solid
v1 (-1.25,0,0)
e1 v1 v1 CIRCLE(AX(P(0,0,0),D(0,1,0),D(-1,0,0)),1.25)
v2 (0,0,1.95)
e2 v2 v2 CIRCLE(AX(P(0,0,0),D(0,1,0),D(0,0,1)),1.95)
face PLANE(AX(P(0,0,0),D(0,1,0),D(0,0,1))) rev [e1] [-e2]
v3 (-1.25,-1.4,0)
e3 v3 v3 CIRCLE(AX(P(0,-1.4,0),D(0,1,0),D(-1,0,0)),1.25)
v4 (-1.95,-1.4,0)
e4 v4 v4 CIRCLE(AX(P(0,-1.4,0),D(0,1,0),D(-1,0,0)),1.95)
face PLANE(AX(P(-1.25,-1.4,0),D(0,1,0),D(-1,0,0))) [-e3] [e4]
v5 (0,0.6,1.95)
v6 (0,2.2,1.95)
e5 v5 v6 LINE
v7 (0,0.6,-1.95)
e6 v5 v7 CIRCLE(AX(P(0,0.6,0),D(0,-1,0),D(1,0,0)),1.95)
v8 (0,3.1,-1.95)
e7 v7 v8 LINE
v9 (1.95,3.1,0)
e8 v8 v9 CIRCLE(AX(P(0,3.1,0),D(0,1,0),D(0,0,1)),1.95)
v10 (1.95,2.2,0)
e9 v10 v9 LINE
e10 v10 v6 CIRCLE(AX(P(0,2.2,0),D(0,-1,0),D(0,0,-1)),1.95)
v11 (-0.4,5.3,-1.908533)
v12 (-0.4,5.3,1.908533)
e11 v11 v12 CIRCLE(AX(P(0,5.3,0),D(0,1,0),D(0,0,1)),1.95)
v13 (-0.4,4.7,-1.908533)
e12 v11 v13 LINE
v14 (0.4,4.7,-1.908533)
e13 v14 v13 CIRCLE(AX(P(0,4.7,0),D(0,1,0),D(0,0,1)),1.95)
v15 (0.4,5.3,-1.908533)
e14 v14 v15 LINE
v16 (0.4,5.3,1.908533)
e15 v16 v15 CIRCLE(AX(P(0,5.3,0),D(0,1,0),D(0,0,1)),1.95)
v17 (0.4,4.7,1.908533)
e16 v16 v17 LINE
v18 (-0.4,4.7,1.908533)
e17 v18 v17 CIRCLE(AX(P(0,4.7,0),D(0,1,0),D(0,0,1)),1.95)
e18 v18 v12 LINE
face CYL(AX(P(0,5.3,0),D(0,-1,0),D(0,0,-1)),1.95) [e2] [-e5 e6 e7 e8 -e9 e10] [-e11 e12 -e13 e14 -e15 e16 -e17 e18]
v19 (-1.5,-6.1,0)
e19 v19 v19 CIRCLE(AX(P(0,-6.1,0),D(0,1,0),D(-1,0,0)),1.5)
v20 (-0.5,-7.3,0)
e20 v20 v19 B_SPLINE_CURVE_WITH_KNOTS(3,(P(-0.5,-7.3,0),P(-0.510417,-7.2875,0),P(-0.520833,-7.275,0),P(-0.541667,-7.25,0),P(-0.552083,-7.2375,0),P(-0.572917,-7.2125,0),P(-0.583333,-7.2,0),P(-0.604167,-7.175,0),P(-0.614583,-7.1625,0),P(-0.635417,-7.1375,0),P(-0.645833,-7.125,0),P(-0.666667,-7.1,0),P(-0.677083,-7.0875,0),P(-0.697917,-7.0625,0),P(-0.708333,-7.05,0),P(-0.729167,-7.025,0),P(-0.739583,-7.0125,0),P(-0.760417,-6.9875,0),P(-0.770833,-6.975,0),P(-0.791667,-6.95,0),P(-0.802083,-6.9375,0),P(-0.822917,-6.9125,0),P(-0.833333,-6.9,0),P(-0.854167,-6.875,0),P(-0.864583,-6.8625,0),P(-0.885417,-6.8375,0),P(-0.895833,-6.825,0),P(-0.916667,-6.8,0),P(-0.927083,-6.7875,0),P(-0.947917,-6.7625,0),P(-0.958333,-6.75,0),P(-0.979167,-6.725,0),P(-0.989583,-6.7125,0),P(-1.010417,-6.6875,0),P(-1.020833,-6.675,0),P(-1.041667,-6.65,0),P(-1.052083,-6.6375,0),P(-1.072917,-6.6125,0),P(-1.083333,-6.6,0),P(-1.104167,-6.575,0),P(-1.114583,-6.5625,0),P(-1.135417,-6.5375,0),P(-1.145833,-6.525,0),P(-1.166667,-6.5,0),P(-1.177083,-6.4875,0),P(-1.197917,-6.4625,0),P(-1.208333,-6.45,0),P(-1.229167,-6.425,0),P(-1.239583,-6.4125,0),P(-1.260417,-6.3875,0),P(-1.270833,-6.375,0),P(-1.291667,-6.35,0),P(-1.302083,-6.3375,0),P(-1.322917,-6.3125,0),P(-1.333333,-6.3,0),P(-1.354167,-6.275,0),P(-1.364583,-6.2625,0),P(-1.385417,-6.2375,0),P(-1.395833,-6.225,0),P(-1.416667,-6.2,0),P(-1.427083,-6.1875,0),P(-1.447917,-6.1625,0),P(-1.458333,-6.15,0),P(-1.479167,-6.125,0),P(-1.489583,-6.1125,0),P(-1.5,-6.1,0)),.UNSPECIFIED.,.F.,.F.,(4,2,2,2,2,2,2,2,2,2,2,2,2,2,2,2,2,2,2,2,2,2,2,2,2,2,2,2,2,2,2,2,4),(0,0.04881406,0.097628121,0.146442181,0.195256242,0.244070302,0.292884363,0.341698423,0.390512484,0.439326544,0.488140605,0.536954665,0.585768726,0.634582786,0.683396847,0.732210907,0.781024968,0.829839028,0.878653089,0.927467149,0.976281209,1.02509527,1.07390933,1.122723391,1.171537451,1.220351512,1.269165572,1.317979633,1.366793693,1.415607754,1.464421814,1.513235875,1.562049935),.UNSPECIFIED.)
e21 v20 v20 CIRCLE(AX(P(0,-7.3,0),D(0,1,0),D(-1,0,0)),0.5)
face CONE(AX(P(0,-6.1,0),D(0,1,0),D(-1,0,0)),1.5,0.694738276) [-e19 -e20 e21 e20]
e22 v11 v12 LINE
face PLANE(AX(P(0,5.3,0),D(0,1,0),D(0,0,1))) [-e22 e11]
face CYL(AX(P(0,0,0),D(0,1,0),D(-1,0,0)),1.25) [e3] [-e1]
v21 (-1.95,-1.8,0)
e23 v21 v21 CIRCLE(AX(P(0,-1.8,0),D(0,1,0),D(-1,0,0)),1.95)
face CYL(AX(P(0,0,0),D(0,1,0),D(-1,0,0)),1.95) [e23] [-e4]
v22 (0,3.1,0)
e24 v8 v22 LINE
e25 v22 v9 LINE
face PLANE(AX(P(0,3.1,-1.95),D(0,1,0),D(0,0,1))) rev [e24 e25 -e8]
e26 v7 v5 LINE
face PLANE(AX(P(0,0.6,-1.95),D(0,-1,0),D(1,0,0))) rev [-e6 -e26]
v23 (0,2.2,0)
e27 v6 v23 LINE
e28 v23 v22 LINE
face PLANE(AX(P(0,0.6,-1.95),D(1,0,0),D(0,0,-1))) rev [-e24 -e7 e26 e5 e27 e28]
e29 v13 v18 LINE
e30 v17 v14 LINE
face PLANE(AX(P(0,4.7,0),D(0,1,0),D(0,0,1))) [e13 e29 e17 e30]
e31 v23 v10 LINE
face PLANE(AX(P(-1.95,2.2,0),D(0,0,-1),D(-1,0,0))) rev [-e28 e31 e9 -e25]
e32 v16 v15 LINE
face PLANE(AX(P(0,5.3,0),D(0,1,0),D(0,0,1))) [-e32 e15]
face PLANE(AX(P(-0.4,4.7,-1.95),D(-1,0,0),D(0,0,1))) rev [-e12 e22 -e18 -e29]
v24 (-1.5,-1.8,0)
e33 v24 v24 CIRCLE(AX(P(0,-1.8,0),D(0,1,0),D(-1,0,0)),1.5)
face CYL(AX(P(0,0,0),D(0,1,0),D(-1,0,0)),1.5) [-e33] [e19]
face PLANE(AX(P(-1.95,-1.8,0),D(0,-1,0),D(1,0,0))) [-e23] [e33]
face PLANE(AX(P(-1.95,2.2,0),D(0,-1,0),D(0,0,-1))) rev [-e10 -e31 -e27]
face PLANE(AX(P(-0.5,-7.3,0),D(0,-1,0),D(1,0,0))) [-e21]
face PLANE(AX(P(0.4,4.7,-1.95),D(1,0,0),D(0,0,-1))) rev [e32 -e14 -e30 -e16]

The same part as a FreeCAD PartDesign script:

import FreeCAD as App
import Part
import Sketcher
from FreeCAD import Vector


def add_polygon(sketch, points):
    """Adds a closed chain of lines whose ends are joined by coincident constraints."""
    first, n = sketch.GeometryCount, len(points)
    for a, b in zip(points, points[1:] + points[:1]):
        sketch.addGeometry(Part.LineSegment(App.Vector(*a, 0), App.Vector(*b, 0)), False)
    for i in range(n):
        sketch.addConstraint(Sketcher.Constraint("Coincident", first + i, 2, first + (i + 1) % n, 1))

doc = App.newDocument("Part")
params = doc.addObject("Spreadsheet::Sheet", "Params")
for row, (alias, value) in enumerate([
    ("sketch1_diameter", "3.9 mm"),
    ("pad1_length", "5.3 mm"),
    ("sketch2_width", "0.8 mm"),
    ("sketch2_height", "3.9 mm"),
    ("pocket1_length", "0.6 mm"),
    ("sketch3_height", "2.5 mm"),
    ("sketch3_width", "1.95 mm"),
    ("sketch4_width", "0.9 mm"),
    ("sketch4_height", "1.95 mm"),
    ("sketch5_width", "0.7 mm"),
    ("sketch5_width2", "0.5 mm"),
    ("sketch5_height", "1.4 mm"),
    ("sketch5_height2", "0.4 mm"),
    ("sketch5_height3", "4.3 mm"),
    ("revolution_angle", "360 deg"),
], start=1):
    params.set(f"A{row}", alias)
    params.set(f"B{row}", "=" + value)
    params.setAlias(f"B{row}", alias)

body = doc.addObject("PartDesign::Body", "Body")

# Sketch on XZ plane
sketch1 = body.newObject("Sketcher::SketchObject", "Sketch")
sketch1.AttachmentSupport = (doc.getObject("XZ_Plane"), [""])
sketch1.MapMode = "FlatFace"
sketch1.addGeometry(Part.Circle(Vector(0, 0, 0), Vector(0, 0, 1), 1.95), False)
sketch1.addConstraint([
    Sketcher.Constraint("Coincident", 0, 3, -1, 1),
    Sketcher.Constraint("Diameter", 0, 3.9),
])
sketch1.setExpression("Constraints[1]", "Params.sketch1_diameter")
pad1 = body.newObject("PartDesign::Pad", "Pad")
pad1.Profile = sketch1
pad1.setExpression("Length", "Params.pad1_length")
pad1.Reversed = True

# Sketch on XZ plane
sketch2 = body.newObject("Sketcher::SketchObject", "Sketch001")
sketch2.AttachmentSupport = (doc.getObject("XZ_Plane"), [""])
sketch2.MapMode = "FlatFace"
sketch2.AttachmentOffset = App.Placement(Vector(0, 0, -5.3), App.Rotation())
add_polygon(sketch2, [(-0.4, -1.95), (-0.4, 1.95), (0.4, 1.95), (0.4, -1.95)])  # lines 0-3
sketch2.addConstraint([
    Sketcher.Constraint("Vertical", 0),
    Sketcher.Constraint("Horizontal", 1),
    Sketcher.Constraint("Vertical", 2),
    Sketcher.Constraint("Horizontal", 3),
    Sketcher.Constraint("Symmetric", 0, 2, 2, 2, -1, 1),
    Sketcher.Constraint("DistanceX", 1, 1, 1, 2, 0.8),
    Sketcher.Constraint("DistanceY", 0, 1, 0, 2, 3.9),
])
sketch2.setExpression("Constraints[9]", "Params.sketch2_width")
sketch2.setExpression("Constraints[10]", "Params.sketch2_height")
pocket1 = body.newObject("PartDesign::Pocket", "Pocket")
pocket1.Profile = sketch2
pocket1.setExpression("Length", "Params.pocket1_length")
pocket1.Reversed = True

# Sketch on XY plane
sketch3 = body.newObject("Sketcher::SketchObject", "Sketch002")
sketch3.AttachmentSupport = (doc.getObject("XY_Plane"), [""])
sketch3.MapMode = "FlatFace"
add_polygon(sketch3, [(-1.95, 3.1), (-1.95, 0.6), (0, 0.6), (0, 3.1)])  # lines 0-3
sketch3.addConstraint([
    Sketcher.Constraint("Vertical", 0),
    Sketcher.Constraint("Horizontal", 1),
    Sketcher.Constraint("Vertical", 2),
    Sketcher.Constraint("Horizontal", 3),
    Sketcher.Constraint("PointOnObject", 1, 2, -2),
    Sketcher.Constraint("DistanceY", 0, 2, 0, 1, 2.5),
    Sketcher.Constraint("DistanceX", 1, 1, 1, 2, 1.95),
    Sketcher.Constraint("DistanceY", -1, 1, 0, 2, 0.6),
])
sketch3.setExpression("Constraints[9]", "Params.sketch3_height")
sketch3.setExpression("Constraints[10]", "Params.sketch3_width")
pocket2 = body.newObject("PartDesign::Pocket", "Pocket001")
pocket2.Profile = sketch3
pocket2.Type = "ThroughAll"
pocket2.Midplane = True

# Sketch on YZ plane
sketch4 = body.newObject("Sketcher::SketchObject", "Sketch003")
sketch4.AttachmentSupport = (doc.getObject("YZ_Plane"), [""])
sketch4.MapMode = "FlatFace"
add_polygon(sketch4, [(3.1, 1.95), (2.2, 1.95), (2.2, 0), (3.1, 0)])  # lines 0-3
sketch4.addConstraint([
    Sketcher.Constraint("Horizontal", 0),
    Sketcher.Constraint("Vertical", 1),
    Sketcher.Constraint("Horizontal", 2),
    Sketcher.Constraint("Vertical", 3),
    Sketcher.Constraint("PointOnObject", 1, 2, -1),
    Sketcher.Constraint("DistanceX", 0, 2, 0, 1, 0.9),
    Sketcher.Constraint("DistanceY", 1, 2, 1, 1, 1.95),
    Sketcher.Constraint("DistanceX", -1, 1, 0, 2, 2.2),
])
sketch4.setExpression("Constraints[9]", "Params.sketch4_width")
sketch4.setExpression("Constraints[10]", "Params.sketch4_height")
pocket3 = body.newObject("PartDesign::Pocket", "Pocket002")
pocket3.Profile = sketch4
pocket3.Type = "ThroughAll"
pocket3.Midplane = True

# Sketch on XY plane
sketch5 = body.newObject("Sketcher::SketchObject", "Sketch004")
sketch5.AttachmentSupport = (doc.getObject("XY_Plane"), [""])
sketch5.MapMode = "FlatFace"
add_polygon(sketch5, [(0, 0), (-1.25, 0), (-1.25, -1.4), (-1.95, -1.4), (-1.95, -1.8), (-1.5, -1.8), (-1.5, -6.1), (-0.5, -7.3), (0, -7.3)])  # lines 0-8
sketch5.addConstraint([
    Sketcher.Constraint("Horizontal", 0),
    Sketcher.Constraint("Vertical", 1),
    Sketcher.Constraint("Horizontal", 2),
    Sketcher.Constraint("Vertical", 3),
    Sketcher.Constraint("Horizontal", 4),
    Sketcher.Constraint("Vertical", 5),
    Sketcher.Constraint("Horizontal", 7),
    Sketcher.Constraint("Vertical", 8),
    Sketcher.Constraint("Coincident", 8, 2, -1, 1),
    Sketcher.Constraint("DistanceX", 2, 2, 2, 1, 0.7),
    Sketcher.Constraint("DistanceX", 7, 1, 7, 2, 0.5),
    Sketcher.Constraint("DistanceY", 1, 2, 1, 1, 1.4),
    Sketcher.Constraint("DistanceY", 3, 2, 3, 1, 0.4),
    Sketcher.Constraint("DistanceY", 5, 2, 5, 1, 4.3),
    Sketcher.Constraint("DistanceY", 8, 1, 8, 2, 7.3),
    Sketcher.Constraint("DistanceX", 5, 2, 6, 2, 1.0),
    Sketcher.Constraint("DistanceX", 0, 2, 0, 1, 1.25),
])
sketch5.setExpression("Constraints[18]", "Params.sketch5_width")
sketch5.setExpression("Constraints[19]", "Params.sketch5_width2")
sketch5.setExpression("Constraints[20]", "Params.sketch5_height")
sketch5.setExpression("Constraints[21]", "Params.sketch5_height2")
sketch5.setExpression("Constraints[22]", "Params.sketch5_height3")
revolution = body.newObject("PartDesign::Revolution", "Revolution")
revolution.Profile = sketch5
revolution.ReferenceAxis = (sketch5, ["V_Axis"])
revolution.setExpression("Angle", "Params.revolution_angle")

doc.recompute()
